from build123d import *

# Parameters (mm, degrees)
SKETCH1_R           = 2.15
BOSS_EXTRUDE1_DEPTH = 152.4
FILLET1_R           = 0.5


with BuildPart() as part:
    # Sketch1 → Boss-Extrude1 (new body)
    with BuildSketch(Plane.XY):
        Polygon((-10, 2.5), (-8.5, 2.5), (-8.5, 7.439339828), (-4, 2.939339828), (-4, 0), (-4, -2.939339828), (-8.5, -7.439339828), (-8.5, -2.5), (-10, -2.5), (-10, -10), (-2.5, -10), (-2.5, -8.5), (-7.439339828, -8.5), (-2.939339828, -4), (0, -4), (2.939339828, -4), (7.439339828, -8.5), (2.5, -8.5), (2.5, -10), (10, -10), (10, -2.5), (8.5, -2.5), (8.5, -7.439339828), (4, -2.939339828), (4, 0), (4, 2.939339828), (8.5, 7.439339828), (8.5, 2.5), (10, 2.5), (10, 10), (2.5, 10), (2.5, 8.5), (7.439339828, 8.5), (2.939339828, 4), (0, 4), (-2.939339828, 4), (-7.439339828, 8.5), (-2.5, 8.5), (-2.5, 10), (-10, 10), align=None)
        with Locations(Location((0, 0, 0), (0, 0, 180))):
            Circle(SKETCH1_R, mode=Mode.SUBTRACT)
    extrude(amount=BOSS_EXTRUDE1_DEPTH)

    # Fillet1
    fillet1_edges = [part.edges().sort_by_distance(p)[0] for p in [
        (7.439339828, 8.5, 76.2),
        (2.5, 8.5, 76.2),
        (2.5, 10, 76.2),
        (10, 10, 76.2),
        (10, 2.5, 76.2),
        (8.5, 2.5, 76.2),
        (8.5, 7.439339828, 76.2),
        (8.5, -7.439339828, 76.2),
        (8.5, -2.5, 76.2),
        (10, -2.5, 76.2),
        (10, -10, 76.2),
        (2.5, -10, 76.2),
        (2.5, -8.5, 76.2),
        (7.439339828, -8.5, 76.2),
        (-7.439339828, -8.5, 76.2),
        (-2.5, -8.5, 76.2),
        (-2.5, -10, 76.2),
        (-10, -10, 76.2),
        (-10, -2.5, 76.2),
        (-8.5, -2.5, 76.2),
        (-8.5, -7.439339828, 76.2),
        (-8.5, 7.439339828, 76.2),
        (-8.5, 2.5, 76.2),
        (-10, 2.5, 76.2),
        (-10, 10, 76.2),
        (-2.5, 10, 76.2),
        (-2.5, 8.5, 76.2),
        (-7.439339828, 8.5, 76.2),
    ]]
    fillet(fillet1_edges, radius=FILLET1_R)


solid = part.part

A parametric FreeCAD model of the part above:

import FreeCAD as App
import Part
import Sketcher
from FreeCAD import Vector
Q = App.Units.Quantity


def edges_at(feature, points):
    """Names of the edges that pass closest to the given points."""
    edges = feature.Shape.Edges
    near = lambda p: min(range(len(edges)), key=lambda i: edges[i].distToShape(Part.Vertex(*p))[0])
    return sorted({f"Edge{near(p) + 1}" for p in points})

doc = App.newDocument("Part")
body = doc.addObject("PartDesign::Body", "Body")

sketch1 = body.newObject("Sketcher::SketchObject", "Sketch")
sketch1.AttachmentSupport = (doc.getObject("XY_Plane"), [""])
sketch1.MapMode = "FlatFace"
sketch1.addGeometry(Part.LineSegment(Vector(-10, 2.5, 0), Vector(-8.5, 2.5, 0)), False)
sketch1.addGeometry(Part.LineSegment(Vector(-8.5, 2.5, 0), Vector(-8.5, 7.4, 0)), False)
sketch1.addGeometry(Part.LineSegment(Vector(-8.5, 7.4, 0), Vector(-4, 2.9, 0)), False)
sketch1.addGeometry(Part.LineSegment(Vector(-4, 2.9, 0), Vector(-4, -2.9, 0)), False)
sketch1.addGeometry(Part.LineSegment(Vector(-4, -2.9, 0), Vector(-8.5, -7.4, 0)), False)
sketch1.addGeometry(Part.LineSegment(Vector(-8.5, -7.4, 0), Vector(-8.5, -2.5, 0)), False)
sketch1.addGeometry(Part.LineSegment(Vector(-8.5, -2.5, 0), Vector(-10, -2.5, 0)), False)
sketch1.addGeometry(Part.LineSegment(Vector(-10, -2.5, 0), Vector(-10, -10, 0)), False)
sketch1.addGeometry(Part.LineSegment(Vector(-10, -10, 0), Vector(-2.5, -10, 0)), False)
sketch1.addGeometry(Part.LineSegment(Vector(-2.5, -10, 0), Vector(-2.5, -8.5, 0)), False)
sketch1.addGeometry(Part.LineSegment(Vector(-2.5, -8.5, 0), Vector(-7.4, -8.5, 0)), False)
sketch1.addGeometry(Part.LineSegment(Vector(-7.4, -8.5, 0), Vector(-2.9, -4, 0)), False)
sketch1.addGeometry(Part.LineSegment(Vector(-2.9, -4, 0), Vector(2.9, -4, 0)), False)
sketch1.addGeometry(Part.LineSegment(Vector(2.9, -4, 0), Vector(7.4, -8.5, 0)), False)
sketch1.addGeometry(Part.LineSegment(Vector(7.4, -8.5, 0), Vector(2.5, -8.5, 0)), False)
sketch1.addGeometry(Part.LineSegment(Vector(2.5, -8.5, 0), Vector(2.5, -10, 0)), False)
sketch1.addGeometry(Part.LineSegment(Vector(2.5, -10, 0), Vector(10, -10, 0)), False)
sketch1.addGeometry(Part.LineSegment(Vector(10, -10, 0), Vector(10, -2.5, 0)), False)
sketch1.addGeometry(Part.LineSegment(Vector(10, -2.5, 0), Vector(8.5, -2.5, 0)), False)
sketch1.addGeometry(Part.LineSegment(Vector(8.5, -2.5, 0), Vector(8.5, -7.4, 0)), False)
sketch1.addGeometry(Part.LineSegment(Vector(8.5, -7.4, 0), Vector(4, -2.9, 0)), False)
sketch1.addGeometry(Part.LineSegment(Vector(4, -2.9, 0), Vector(4, 2.9, 0)), False)
sketch1.addGeometry(Part.LineSegment(Vector(4, 2.9, 0), Vector(8.5, 7.4, 0)), False)
sketch1.addGeometry(Part.LineSegment(Vector(8.5, 7.4, 0), Vector(8.5, 2.5, 0)), False)
sketch1.addGeometry(Part.LineSegment(Vector(8.5, 2.5, 0), Vector(10, 2.5, 0)), False)
sketch1.addGeometry(Part.LineSegment(Vector(10, 2.5, 0), Vector(10, 10, 0)), False)
sketch1.addGeometry(Part.LineSegment(Vector(10, 10, 0), Vector(2.5, 10, 0)), False)
sketch1.addGeometry(Part.LineSegment(Vector(2.5, 10, 0), Vector(2.5, 8.5, 0)), False)
sketch1.addGeometry(Part.LineSegment(Vector(2.5, 8.5, 0), Vector(7.4, 8.5, 0)), False)
sketch1.addGeometry(Part.LineSegment(Vector(7.4, 8.5, 0), Vector(2.9, 4, 0)), False)
sketch1.addGeometry(Part.LineSegment(Vector(2.9, 4, 0), Vector(-2.9, 4, 0)), False)
sketch1.addGeometry(Part.LineSegment(Vector(-2.9, 4, 0), Vector(-7.4, 8.5, 0)), False)
sketch1.addGeometry(Part.LineSegment(Vector(-7.4, 8.5, 0), Vector(-2.5, 8.5, 0)), False)
sketch1.addGeometry(Part.LineSegment(Vector(-2.5, 8.5, 0), Vector(-2.5, 10, 0)), False)
sketch1.addGeometry(Part.LineSegment(Vector(-2.5, 10, 0), Vector(-10, 10, 0)), False)
sketch1.addGeometry(Part.LineSegment(Vector(-10, 10, 0), Vector(-10, 2.5, 0)), False)
sketch1.addGeometry(Part.Circle(Vector(0, 0, 0), Vector(0, 0, 1), 2.1), False)
sketch1.addConstraint(Sketcher.Constraint("Coincident", 0, 2, 1, 1))
sketch1.addConstraint(Sketcher.Constraint("Coincident", 1, 2, 2, 1))
sketch1.addConstraint(Sketcher.Constraint("Coincident", 2, 2, 3, 1))
sketch1.addConstraint(Sketcher.Constraint("Coincident", 3, 2, 4, 1))
sketch1.addConstraint(Sketcher.Constraint("Coincident", 4, 2, 5, 1))
sketch1.addConstraint(Sketcher.Constraint("Coincident", 5, 2, 6, 1))
sketch1.addConstraint(Sketcher.Constraint("Coincident", 6, 2, 7, 1))
sketch1.addConstraint(Sketcher.Constraint("Coincident", 7, 2, 8, 1))
sketch1.addConstraint(Sketcher.Constraint("Coincident", 8, 2, 9, 1))
sketch1.addConstraint(Sketcher.Constraint("Coincident", 9, 2, 10, 1))
sketch1.addConstraint(Sketcher.Constraint("Coincident", 10, 2, 11, 1))
sketch1.addConstraint(Sketcher.Constraint("Coincident", 11, 2, 12, 1))
sketch1.addConstraint(Sketcher.Constraint("Coincident", 12, 2, 13, 1))
sketch1.addConstraint(Sketcher.Constraint("Coincident", 13, 2, 14, 1))
sketch1.addConstraint(Sketcher.Constraint("Coincident", 14, 2, 15, 1))
sketch1.addConstraint(Sketcher.Constraint("Coincident", 15, 2, 16, 1))
sketch1.addConstraint(Sketcher.Constraint("Coincident", 16, 2, 17, 1))
sketch1.addConstraint(Sketcher.Constraint("Coincident", 17, 2, 18, 1))
sketch1.addConstraint(Sketcher.Constraint("Coincident", 18, 2, 19, 1))
sketch1.addConstraint(Sketcher.Constraint("Coincident", 19, 2, 20, 1))
sketch1.addConstraint(Sketcher.Constraint("Coincident", 20, 2, 21, 1))
sketch1.addConstraint(Sketcher.Constraint("Coincident", 21, 2, 22, 1))
sketch1.addConstraint(Sketcher.Constraint("Coincident", 22, 2, 23, 1))
sketch1.addConstraint(Sketcher.Constraint("Coincident", 23, 2, 24, 1))
sketch1.addConstraint(Sketcher.Constraint("Coincident", 24, 2, 25, 1))
sketch1.addConstraint(Sketcher.Constraint("Coincident", 25, 2, 26, 1))
sketch1.addConstraint(Sketcher.Constraint("Coincident", 26, 2, 27, 1))
sketch1.addConstraint(Sketcher.Constraint("Coincident", 27, 2, 28, 1))
sketch1.addConstraint(Sketcher.Constraint("Coincident", 28, 2, 29, 1))
sketch1.addConstraint(Sketcher.Constraint("Coincident", 29, 2, 30, 1))
sketch1.addConstraint(Sketcher.Constraint("Coincident", 30, 2, 31, 1))
sketch1.addConstraint(Sketcher.Constraint("Coincident", 31, 2, 32, 1))
sketch1.addConstraint(Sketcher.Constraint("Coincident", 32, 2, 33, 1))
sketch1.addConstraint(Sketcher.Constraint("Coincident", 33, 2, 34, 1))
sketch1.addConstraint(Sketcher.Constraint("Coincident", 34, 2, 35, 1))
sketch1.addConstraint(Sketcher.Constraint("Coincident", 35, 2, 0, 1))
sketch1.addConstraint(Sketcher.Constraint("Horizontal", 0))
sketch1.addConstraint(Sketcher.Constraint("Vertical", 1))
sketch1.addConstraint(Sketcher.Constraint("Vertical", 3))
sketch1.addConstraint(Sketcher.Constraint("Vertical", 5))
sketch1.addConstraint(Sketcher.Constraint("Horizontal", 6))
sketch1.addConstraint(Sketcher.Constraint("Vertical", 7))
sketch1.addConstraint(Sketcher.Constraint("Horizontal", 8))
sketch1.addConstraint(Sketcher.Constraint("Vertical", 9))
sketch1.addConstraint(Sketcher.Constraint("Horizontal", 10))
sketch1.addConstraint(Sketcher.Constraint("Horizontal", 12))
sketch1.addConstraint(Sketcher.Constraint("Horizontal", 14))
sketch1.addConstraint(Sketcher.Constraint("Vertical", 15))
sketch1.addConstraint(Sketcher.Constraint("Horizontal", 16))
sketch1.addConstraint(Sketcher.Constraint("Vertical", 17))
sketch1.addConstraint(Sketcher.Constraint("Horizontal", 18))
sketch1.addConstraint(Sketcher.Constraint("Vertical", 19))
sketch1.addConstraint(Sketcher.Constraint("Vertical", 21))
sketch1.addConstraint(Sketcher.Constraint("Vertical", 23))
sketch1.addConstraint(Sketcher.Constraint("Horizontal", 24))
sketch1.addConstraint(Sketcher.Constraint("Vertical", 25))
sketch1.addConstraint(Sketcher.Constraint("Horizontal", 26))
sketch1.addConstraint(Sketcher.Constraint("Vertical", 27))
sketch1.addConstraint(Sketcher.Constraint("Horizontal", 28))
sketch1.addConstraint(Sketcher.Constraint("Horizontal", 30))
sketch1.addConstraint(Sketcher.Constraint("Horizontal", 32))
sketch1.addConstraint(Sketcher.Constraint("Vertical", 33))
sketch1.addConstraint(Sketcher.Constraint("Horizontal", 34))
sketch1.addConstraint(Sketcher.Constraint("Vertical", 35))
sketch1.addConstraint(Sketcher.Constraint("Coincident", 36, 3, -1, 1))
sketch1.addConstraint(Sketcher.Constraint("Symmetric", 0, 2, 18, 2, -1, 1))
sketch1.addConstraint(Sketcher.Constraint("Symmetric", 2, 2, 20, 2, -1, 1))
sketch1.addConstraint(Sketcher.Constraint("Symmetric", 4, 2, 22, 2, -1, 1))
sketch1.addConstraint(Sketcher.Constraint("Symmetric", 6, 2, 24, 2, -1, 1))
sketch1.addConstraint(Sketcher.Constraint("Symmetric", 8, 2, 26, 2, -1, 1))
sketch1.addConstraint(Sketcher.Constraint("Symmetric", 10, 2, 28, 2, -1, 1))
sketch1.addConstraint(Sketcher.Constraint("Symmetric", 11, 2, 29, 2, -1, 1))
sketch1.addConstraint(Sketcher.Constraint("Symmetric", 13, 2, 31, 2, -1, 1))
sketch1.addConstraint(Sketcher.Constraint("Symmetric", 15, 2, 33, 2, -1, 1))
sketch1.addConstraint(Sketcher.Constraint("Symmetric", 10, 2, 13, 2, -2))
sketch1.addConstraint(Sketcher.Constraint("Symmetric", 8, 2, 15, 2, -2))
sketch1.addConstraint(Sketcher.Constraint("Symmetric", 6, 2, 17, 2, -2))
sketch1.addConstraint(Sketcher.Constraint("Symmetric", 4, 2, 19, 2, -2))
sketch1.addConstraint(Sketcher.Constraint("Perpendicular", 2, 4))
sketch1.addConstraint(Sketcher.Constraint("Parallel", 4, 11))
sketch1.addConstraint(Sketcher.Constraint("Perpendicular", 11, 13))
sketch1.addConstraint(Sketcher.Constraint("Parallel", 13, 20))
sketch1.addConstraint(Sketcher.Constraint("Perpendicular", 20, 22))
sketch1.addConstraint(Sketcher.Constraint("Perpendicular", 29, 31))
sketch1.addConstraint(Sketcher.Constraint("Horizontal", 3, 2, 20, 2))
sketch1.addConstraint(Sketcher.Constraint("Vertical", 7, 2, 34, 2))
sketch1.addConstraint(Sketcher.Constraint("Equal", 32, 1))
sketch1.addConstraint(Sketcher.Constraint("Equal", 30, 3))
sketch1.addConstraint(Sketcher.Constraint("Equal", 34, 7))
sketch1.addConstraint(Sketcher.Constraint("Equal", 24, 9))
sketch1.addConstraint(Sketcher.Constraint("Equal", 4, 11))
sketch1.addConstraint(Sketcher.Constraint("Diameter", 36, Q("4.3 mm")))
sketch1.addConstraint(Sketcher.Constraint("DistanceX", 0, 1, 0, 2, Q("1.5 mm")))
sketch1.addConstraint(Sketcher.Constraint("DistanceX", 8, 1, 8, 2, Q("7.5 mm")))
sketch1.addConstraint(Sketcher.Constraint("DistanceX", 2, 2, -1, 1, Q("4 mm")))
sketch1.addConstraint(Sketcher.Constraint("DistanceX", 6, 2, -1, 1, Q("10 mm")))
sketch1.addConstraint(Sketcher.Constraint("DistanceX", 10, 2, 10, 1, Q("4.93934 mm")))
pad1 = body.newObject("PartDesign::Pad", "Pad")
pad1.Profile = sketch1
pad1.Length = 152.4
doc.recompute()

fillet = body.newObject("PartDesign::Fillet", "Fillet")
fillet.Base = (pad1, edges_at(pad1, [
    (7.439, 8.5, 76.2),
    (2.5, 8.5, 76.2),
    (2.5, 10, 76.2),
    (10, 10, 76.2),
    (10, 2.5, 76.2),
    (8.5, 2.5, 76.2),
    (8.5, 7.439, 76.2),
    (8.5, -7.439, 76.2),
    (8.5, -2.5, 76.2),
    (10, -2.5, 76.2),
    (10, -10, 76.2),
    (2.5, -10, 76.2),
    (2.5, -8.5, 76.2),
    (7.439, -8.5, 76.2),
    (-7.439, -8.5, 76.2),
    (-2.5, -8.5, 76.2),
    (-2.5, -10, 76.2),
    (-10, -10, 76.2),
    (-10, -2.5, 76.2),
    (-8.5, -2.5, 76.2),
    (-8.5, -7.439, 76.2),
    (-8.5, 7.439, 76.2),
    (-8.5, 2.5, 76.2),
    (-10, 2.5, 76.2),
    (-10, 10, 76.2),
    (-2.5, 10, 76.2),
    (-2.5, 8.5, 76.2),
    (-7.439, 8.5, 76.2),
]))
fillet.Radius = 0.5

doc.recompute()
